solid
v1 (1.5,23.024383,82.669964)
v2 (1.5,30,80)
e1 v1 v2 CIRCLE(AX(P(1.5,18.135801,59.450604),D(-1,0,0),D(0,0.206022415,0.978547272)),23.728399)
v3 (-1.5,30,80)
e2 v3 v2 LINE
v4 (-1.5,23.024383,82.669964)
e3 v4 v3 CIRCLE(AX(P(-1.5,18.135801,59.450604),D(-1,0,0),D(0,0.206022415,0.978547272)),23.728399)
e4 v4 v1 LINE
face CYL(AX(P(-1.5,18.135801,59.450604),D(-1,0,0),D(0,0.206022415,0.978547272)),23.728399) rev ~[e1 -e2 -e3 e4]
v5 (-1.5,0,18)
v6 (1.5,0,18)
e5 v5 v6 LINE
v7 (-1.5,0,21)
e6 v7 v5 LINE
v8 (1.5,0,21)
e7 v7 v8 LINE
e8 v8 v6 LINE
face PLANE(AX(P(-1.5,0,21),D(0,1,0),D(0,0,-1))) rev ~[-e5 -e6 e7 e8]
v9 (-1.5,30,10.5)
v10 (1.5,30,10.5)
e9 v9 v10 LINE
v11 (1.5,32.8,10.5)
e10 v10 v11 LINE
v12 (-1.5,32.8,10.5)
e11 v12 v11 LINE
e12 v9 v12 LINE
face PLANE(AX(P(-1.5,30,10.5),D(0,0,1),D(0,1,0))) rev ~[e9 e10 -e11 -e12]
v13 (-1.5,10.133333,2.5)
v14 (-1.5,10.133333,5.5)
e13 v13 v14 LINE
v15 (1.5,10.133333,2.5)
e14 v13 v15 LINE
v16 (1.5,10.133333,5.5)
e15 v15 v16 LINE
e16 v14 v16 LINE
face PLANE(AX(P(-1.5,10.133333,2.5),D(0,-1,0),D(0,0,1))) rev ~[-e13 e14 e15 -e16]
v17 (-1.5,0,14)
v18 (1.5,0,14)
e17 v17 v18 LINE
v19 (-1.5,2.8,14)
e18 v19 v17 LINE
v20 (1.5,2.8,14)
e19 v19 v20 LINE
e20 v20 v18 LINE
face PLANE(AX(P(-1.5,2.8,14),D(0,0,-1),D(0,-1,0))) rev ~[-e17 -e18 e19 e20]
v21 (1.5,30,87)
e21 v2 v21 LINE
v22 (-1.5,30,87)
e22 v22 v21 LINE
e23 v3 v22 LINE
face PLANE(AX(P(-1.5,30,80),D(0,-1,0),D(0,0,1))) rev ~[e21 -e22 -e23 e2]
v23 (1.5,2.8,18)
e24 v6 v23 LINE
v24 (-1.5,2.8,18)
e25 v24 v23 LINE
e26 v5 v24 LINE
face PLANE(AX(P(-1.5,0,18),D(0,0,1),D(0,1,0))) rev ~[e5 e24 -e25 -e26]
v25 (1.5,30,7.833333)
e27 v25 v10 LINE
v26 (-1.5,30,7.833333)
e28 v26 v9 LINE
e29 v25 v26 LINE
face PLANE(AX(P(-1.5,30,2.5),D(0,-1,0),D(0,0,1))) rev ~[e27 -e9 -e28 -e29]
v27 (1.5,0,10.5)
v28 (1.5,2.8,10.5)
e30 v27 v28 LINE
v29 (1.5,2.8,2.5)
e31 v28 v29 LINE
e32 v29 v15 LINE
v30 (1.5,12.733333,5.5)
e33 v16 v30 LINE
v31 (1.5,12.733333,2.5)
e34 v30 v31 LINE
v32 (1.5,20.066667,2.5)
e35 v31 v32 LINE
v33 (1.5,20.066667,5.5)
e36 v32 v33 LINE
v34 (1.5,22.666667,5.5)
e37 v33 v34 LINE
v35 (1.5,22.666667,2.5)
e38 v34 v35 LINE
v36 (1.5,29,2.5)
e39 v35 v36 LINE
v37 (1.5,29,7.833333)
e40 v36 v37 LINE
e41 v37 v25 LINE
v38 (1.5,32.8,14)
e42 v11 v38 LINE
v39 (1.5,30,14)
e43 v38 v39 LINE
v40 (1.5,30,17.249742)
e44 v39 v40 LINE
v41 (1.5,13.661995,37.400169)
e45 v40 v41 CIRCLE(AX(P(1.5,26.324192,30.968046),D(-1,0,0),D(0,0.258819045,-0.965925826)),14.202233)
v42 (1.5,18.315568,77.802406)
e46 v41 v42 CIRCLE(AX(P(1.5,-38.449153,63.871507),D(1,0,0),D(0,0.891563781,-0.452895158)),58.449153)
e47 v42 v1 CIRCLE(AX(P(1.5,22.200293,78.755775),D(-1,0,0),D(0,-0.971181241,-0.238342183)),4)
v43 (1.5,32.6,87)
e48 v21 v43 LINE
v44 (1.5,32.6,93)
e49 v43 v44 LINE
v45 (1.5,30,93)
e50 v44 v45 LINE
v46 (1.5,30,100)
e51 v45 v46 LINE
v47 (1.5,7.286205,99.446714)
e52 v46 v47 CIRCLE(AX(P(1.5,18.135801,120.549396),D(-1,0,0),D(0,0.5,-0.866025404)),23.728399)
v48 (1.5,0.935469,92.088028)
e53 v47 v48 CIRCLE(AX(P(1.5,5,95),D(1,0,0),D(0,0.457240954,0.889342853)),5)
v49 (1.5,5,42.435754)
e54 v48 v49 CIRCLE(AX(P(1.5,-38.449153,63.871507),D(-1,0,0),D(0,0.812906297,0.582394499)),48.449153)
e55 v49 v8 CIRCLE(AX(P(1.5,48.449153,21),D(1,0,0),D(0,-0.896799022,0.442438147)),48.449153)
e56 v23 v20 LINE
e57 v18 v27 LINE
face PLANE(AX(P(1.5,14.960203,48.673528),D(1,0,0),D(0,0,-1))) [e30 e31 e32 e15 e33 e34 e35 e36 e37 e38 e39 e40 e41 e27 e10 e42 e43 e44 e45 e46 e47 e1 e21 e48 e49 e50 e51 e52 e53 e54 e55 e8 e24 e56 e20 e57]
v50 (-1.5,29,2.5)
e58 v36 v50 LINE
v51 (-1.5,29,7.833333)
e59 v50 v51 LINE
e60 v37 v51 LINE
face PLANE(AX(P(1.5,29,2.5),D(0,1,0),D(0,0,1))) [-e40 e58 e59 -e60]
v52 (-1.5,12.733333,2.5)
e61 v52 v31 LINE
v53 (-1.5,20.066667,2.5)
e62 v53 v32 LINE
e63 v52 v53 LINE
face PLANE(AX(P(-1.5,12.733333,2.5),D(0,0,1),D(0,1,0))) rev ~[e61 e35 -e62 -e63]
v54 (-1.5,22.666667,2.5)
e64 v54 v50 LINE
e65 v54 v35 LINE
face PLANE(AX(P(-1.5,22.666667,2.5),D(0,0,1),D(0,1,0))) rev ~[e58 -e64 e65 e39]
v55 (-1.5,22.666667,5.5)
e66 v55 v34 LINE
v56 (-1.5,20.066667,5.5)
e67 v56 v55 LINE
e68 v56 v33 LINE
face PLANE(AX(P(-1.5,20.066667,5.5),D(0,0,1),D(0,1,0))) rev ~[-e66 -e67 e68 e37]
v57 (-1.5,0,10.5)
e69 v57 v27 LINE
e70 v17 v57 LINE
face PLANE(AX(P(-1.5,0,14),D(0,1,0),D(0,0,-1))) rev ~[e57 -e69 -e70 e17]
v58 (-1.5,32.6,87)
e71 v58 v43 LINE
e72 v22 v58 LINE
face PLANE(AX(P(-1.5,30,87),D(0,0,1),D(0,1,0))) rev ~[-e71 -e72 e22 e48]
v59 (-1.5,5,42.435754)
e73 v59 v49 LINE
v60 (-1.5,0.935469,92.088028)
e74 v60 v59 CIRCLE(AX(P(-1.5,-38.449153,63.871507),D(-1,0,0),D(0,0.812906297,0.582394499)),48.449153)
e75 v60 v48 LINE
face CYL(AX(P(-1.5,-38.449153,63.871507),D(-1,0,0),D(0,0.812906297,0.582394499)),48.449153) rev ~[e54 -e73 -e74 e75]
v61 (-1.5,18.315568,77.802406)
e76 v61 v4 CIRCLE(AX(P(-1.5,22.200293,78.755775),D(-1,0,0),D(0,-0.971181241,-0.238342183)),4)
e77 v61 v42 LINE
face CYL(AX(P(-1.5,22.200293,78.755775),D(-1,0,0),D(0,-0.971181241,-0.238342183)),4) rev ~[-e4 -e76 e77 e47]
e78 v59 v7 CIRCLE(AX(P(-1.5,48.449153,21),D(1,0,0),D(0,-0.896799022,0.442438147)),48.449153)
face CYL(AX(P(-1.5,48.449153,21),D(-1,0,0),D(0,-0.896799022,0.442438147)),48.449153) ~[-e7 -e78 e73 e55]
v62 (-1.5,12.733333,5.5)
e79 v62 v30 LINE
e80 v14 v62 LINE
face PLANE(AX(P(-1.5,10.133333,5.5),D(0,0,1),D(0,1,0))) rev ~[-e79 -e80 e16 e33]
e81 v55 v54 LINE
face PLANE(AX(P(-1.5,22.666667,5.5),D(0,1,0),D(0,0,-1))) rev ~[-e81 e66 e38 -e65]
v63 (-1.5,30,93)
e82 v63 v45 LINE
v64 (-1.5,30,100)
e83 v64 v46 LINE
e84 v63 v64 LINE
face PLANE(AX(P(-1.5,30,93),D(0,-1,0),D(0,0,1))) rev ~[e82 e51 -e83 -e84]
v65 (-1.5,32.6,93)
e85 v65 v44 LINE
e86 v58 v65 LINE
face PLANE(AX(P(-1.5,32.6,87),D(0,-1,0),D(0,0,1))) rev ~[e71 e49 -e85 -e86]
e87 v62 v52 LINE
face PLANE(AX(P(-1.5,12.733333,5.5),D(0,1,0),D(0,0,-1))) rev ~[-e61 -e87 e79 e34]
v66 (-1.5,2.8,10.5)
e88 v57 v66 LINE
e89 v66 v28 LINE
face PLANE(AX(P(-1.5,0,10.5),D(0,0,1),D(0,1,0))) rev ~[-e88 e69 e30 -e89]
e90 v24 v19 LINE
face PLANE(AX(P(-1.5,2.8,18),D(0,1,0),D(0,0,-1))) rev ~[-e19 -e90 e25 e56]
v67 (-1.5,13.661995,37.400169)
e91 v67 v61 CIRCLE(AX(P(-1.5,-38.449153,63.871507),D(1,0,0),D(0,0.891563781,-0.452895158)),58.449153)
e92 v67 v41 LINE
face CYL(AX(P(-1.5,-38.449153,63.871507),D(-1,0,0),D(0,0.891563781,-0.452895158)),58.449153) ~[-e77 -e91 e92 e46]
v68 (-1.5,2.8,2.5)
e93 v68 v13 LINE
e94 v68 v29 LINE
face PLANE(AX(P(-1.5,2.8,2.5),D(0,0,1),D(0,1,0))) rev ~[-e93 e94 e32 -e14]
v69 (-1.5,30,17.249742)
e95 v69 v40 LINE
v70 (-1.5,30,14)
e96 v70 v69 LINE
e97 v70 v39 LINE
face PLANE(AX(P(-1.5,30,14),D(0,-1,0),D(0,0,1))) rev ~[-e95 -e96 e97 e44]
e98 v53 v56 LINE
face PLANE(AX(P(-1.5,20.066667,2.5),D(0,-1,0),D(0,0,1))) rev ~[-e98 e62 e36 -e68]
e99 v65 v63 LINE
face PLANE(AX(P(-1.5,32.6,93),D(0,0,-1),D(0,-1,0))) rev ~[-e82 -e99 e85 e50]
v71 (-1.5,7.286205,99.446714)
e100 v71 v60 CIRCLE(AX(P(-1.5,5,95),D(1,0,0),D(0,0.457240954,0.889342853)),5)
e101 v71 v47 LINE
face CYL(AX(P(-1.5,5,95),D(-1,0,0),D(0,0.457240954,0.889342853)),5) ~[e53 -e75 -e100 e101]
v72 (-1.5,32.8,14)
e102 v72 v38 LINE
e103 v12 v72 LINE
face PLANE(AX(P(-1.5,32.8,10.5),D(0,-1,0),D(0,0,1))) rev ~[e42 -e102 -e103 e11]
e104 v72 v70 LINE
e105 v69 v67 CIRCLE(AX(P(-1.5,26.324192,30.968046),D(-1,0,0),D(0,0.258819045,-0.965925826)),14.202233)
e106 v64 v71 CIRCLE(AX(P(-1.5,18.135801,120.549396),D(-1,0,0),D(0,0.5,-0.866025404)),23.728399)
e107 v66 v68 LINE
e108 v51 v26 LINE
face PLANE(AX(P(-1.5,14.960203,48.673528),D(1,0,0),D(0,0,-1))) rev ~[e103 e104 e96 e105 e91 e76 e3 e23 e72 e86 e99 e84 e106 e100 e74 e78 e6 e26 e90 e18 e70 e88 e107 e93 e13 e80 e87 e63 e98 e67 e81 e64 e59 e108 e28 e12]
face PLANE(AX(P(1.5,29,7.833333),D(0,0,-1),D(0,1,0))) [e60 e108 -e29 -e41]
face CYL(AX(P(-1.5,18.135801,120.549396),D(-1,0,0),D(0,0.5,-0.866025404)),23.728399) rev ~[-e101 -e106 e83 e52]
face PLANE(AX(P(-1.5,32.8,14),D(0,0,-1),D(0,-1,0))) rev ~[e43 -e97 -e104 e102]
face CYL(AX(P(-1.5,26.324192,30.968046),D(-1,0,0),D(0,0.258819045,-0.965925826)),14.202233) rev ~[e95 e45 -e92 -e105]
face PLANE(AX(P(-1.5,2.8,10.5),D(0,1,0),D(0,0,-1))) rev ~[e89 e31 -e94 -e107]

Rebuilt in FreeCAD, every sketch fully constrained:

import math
import FreeCAD as App
import Part
import Sketcher
Q = App.Units.Quantity

doc = App.newDocument("Part")
params = doc.addObject("Spreadsheet::Sheet", "Params")
for row, (alias, value) in enumerate([
    ("sketch1_radius", "5 mm"),
    ("sketch1_radius2", "4 mm"),
    ("sketch1_height", "7 mm"),
    ("sketch1_height2", "6 mm"),
    ("sketch1_height3", "3 mm"),
    ("pad1_length", "1.5 mm"),
    ("pad1_length2", "1.5 mm"),
    ("sketch2_width", "1 mm"),
], start=1):
    params.set(f"A{row}", alias)
    params.set(f"B{row}", "=" + value)
    params.setAlias(f"B{row}", alias)

body = doc.addObject("PartDesign::Body", "Body")

sketch1 = body.newObject("Sketcher::SketchObject", "Sketch")
sketch1.AttachmentSupport = (doc.getObject("YZ_Plane"), [""])
sketch1.MapMode = "FlatFace"
sketch1.addGeometry(Part.LineSegment(App.Vector(30, 80, 0), App.Vector(30, 87, 0)), False)
sketch1.addGeometry(Part.LineSegment(App.Vector(30, 87, 0), App.Vector(32.6, 87, 0)), False)
sketch1.addGeometry(Part.LineSegment(App.Vector(32.6, 87, 0), App.Vector(32.6, 93, 0)), False)
sketch1.addGeometry(Part.LineSegment(App.Vector(32.6, 93, 0), App.Vector(30, 93, 0)), False)
sketch1.addGeometry(Part.LineSegment(App.Vector(30, 93, 0), App.Vector(30, 100, 0)), False)
sketch1.addGeometry(Part.ArcOfCircle(Part.Circle(App.Vector(18.1, 120.5, 0), App.Vector(0, 0, 1), 23.7), math.radians(-117), math.radians(-60)), False)
sketch1.addGeometry(Part.ArcOfCircle(Part.Circle(App.Vector(5, 95, 0), App.Vector(0, 0, 1), 5), math.radians(63), math.radians(216)), False)
sketch1.addGeometry(Part.ArcOfCircle(Part.Circle(App.Vector(-38.4, 63.9, 0), App.Vector(0, 0, 1), 48.4), math.radians(-26), math.radians(36)), False)
sketch1.addGeometry(Part.ArcOfCircle(Part.Circle(App.Vector(48.4, 21, 0), App.Vector(0, 0, 1), 48.4), math.radians(154), math.radians(180)), False)
sketch1.addGeometry(Part.LineSegment(App.Vector(0, 21, 0), App.Vector(0, 18, 0)), False)
sketch1.addGeometry(Part.LineSegment(App.Vector(0, 18, 0), App.Vector(2.8, 18, 0)), False)
sketch1.addGeometry(Part.LineSegment(App.Vector(2.8, 18, 0), App.Vector(2.8, 14, 0)), False)
sketch1.addGeometry(Part.LineSegment(App.Vector(2.8, 14, 0), App.Vector(0, 14, 0)), False)
sketch1.addGeometry(Part.LineSegment(App.Vector(0, 14, 0), App.Vector(0, 10.5, 0)), False)
sketch1.addGeometry(Part.LineSegment(App.Vector(0, 10.5, 0), App.Vector(2.8, 10.5, 0)), False)
sketch1.addGeometry(Part.LineSegment(App.Vector(2.8, 10.5, 0), App.Vector(2.8, 2.5, 0)), False)
sketch1.addGeometry(Part.LineSegment(App.Vector(2.8, 2.5, 0), App.Vector(10.1, 2.5, 0)), False)
sketch1.addGeometry(Part.LineSegment(App.Vector(10.1, 2.5, 0), App.Vector(10.1, 5.5, 0)), False)
sketch1.addGeometry(Part.LineSegment(App.Vector(10.1, 5.5, 0), App.Vector(12.7, 5.5, 0)), False)
sketch1.addGeometry(Part.LineSegment(App.Vector(12.7, 5.5, 0), App.Vector(12.7, 2.5, 0)), False)
sketch1.addGeometry(Part.LineSegment(App.Vector(12.7, 2.5, 0), App.Vector(20.1, 2.5, 0)), False)
sketch1.addGeometry(Part.LineSegment(App.Vector(20.1, 2.5, 0), App.Vector(20.1, 5.5, 0)), False)
sketch1.addGeometry(Part.LineSegment(App.Vector(20.1, 5.5, 0), App.Vector(22.7, 5.5, 0)), False)
sketch1.addGeometry(Part.LineSegment(App.Vector(22.7, 5.5, 0), App.Vector(22.7, 2.5, 0)), False)
sketch1.addGeometry(Part.LineSegment(App.Vector(22.7, 2.5, 0), App.Vector(30, 2.5, 0)), False)
sketch1.addGeometry(Part.LineSegment(App.Vector(30, 2.5, 0), App.Vector(30, 10.5, 0)), False)
sketch1.addGeometry(Part.LineSegment(App.Vector(30, 10.5, 0), App.Vector(32.8, 10.5, 0)), False)
sketch1.addGeometry(Part.LineSegment(App.Vector(32.8, 10.5, 0), App.Vector(32.8, 14, 0)), False)
sketch1.addGeometry(Part.LineSegment(App.Vector(32.8, 14, 0), App.Vector(30, 14, 0)), False)
sketch1.addGeometry(Part.LineSegment(App.Vector(30, 14, 0), App.Vector(30, 17.2, 0)), False)
sketch1.addGeometry(Part.ArcOfCircle(Part.Circle(App.Vector(26.3, 31, 0), App.Vector(0, 0, 1), 14.2), math.radians(153), math.radians(285)), False)
sketch1.addGeometry(Part.ArcOfCircle(Part.Circle(App.Vector(-38.4, 63.9, 0), App.Vector(0, 0, 1), 58.4), math.radians(-27), math.radians(14)), False)
sketch1.addGeometry(Part.ArcOfCircle(Part.Circle(App.Vector(22.2, 78.8, 0), App.Vector(0, 0, 1), 4), math.radians(78), math.radians(194)), False)
sketch1.addGeometry(Part.ArcOfCircle(Part.Circle(App.Vector(18.1, 59.5, 0), App.Vector(0, 0, 1), 23.7), math.radians(60), math.radians(78.11)), False)
sketch1.addConstraint(Sketcher.Constraint("Coincident", 0, 2, 1, 1))
sketch1.addConstraint(Sketcher.Constraint("Coincident", 1, 2, 2, 1))
sketch1.addConstraint(Sketcher.Constraint("Coincident", 2, 2, 3, 1))
sketch1.addConstraint(Sketcher.Constraint("Coincident", 3, 2, 4, 1))
sketch1.addConstraint(Sketcher.Constraint("Coincident", 4, 2, 5, 2))
sketch1.addConstraint(Sketcher.Constraint("Tangent", 5, 1, 6, 1))
sketch1.addConstraint(Sketcher.Constraint("Tangent", 6, 2, 7, 2))
sketch1.addConstraint(Sketcher.Constraint("Tangent", 7, 1, 8, 1))
sketch1.addConstraint(Sketcher.Constraint("Tangent", 8, 2, 9, 1))
sketch1.addConstraint(Sketcher.Constraint("Coincident", 9, 2, 10, 1))
sketch1.addConstraint(Sketcher.Constraint("Coincident", 10, 2, 11, 1))
sketch1.addConstraint(Sketcher.Constraint("Coincident", 11, 2, 12, 1))
sketch1.addConstraint(Sketcher.Constraint("Coincident", 12, 2, 13, 1))
sketch1.addConstraint(Sketcher.Constraint("Coincident", 13, 2, 14, 1))
sketch1.addConstraint(Sketcher.Constraint("Coincident", 14, 2, 15, 1))
sketch1.addConstraint(Sketcher.Constraint("Coincident", 15, 2, 16, 1))
sketch1.addConstraint(Sketcher.Constraint("Coincident", 16, 2, 17, 1))
sketch1.addConstraint(Sketcher.Constraint("Coincident", 17, 2, 18, 1))
sketch1.addConstraint(Sketcher.Constraint("Coincident", 18, 2, 19, 1))
sketch1.addConstraint(Sketcher.Constraint("Coincident", 19, 2, 20, 1))
sketch1.addConstraint(Sketcher.Constraint("Coincident", 20, 2, 21, 1))
sketch1.addConstraint(Sketcher.Constraint("Coincident", 21, 2, 22, 1))
sketch1.addConstraint(Sketcher.Constraint("Coincident", 22, 2, 23, 1))
sketch1.addConstraint(Sketcher.Constraint("Coincident", 23, 2, 24, 1))
sketch1.addConstraint(Sketcher.Constraint("Coincident", 24, 2, 25, 1))
sketch1.addConstraint(Sketcher.Constraint("Coincident", 25, 2, 26, 1))
sketch1.addConstraint(Sketcher.Constraint("Coincident", 26, 2, 27, 1))
sketch1.addConstraint(Sketcher.Constraint("Coincident", 27, 2, 28, 1))
sketch1.addConstraint(Sketcher.Constraint("Coincident", 28, 2, 29, 1))
sketch1.addConstraint(Sketcher.Constraint("Coincident", 29, 2, 30, 2))
sketch1.addConstraint(Sketcher.Constraint("Tangent", 30, 1, 31, 1))
sketch1.addConstraint(Sketcher.Constraint("Tangent", 31, 2, 32, 2))
sketch1.addConstraint(Sketcher.Constraint("Tangent", 32, 1, 33, 2))
sketch1.addConstraint(Sketcher.Constraint("Coincident", 33, 1, 0, 1))
sketch1.addConstraint(Sketcher.Constraint("Vertical", 0))
sketch1.addConstraint(Sketcher.Constraint("Horizontal", 1))
sketch1.addConstraint(Sketcher.Constraint("Vertical", 2))
sketch1.addConstraint(Sketcher.Constraint("Horizontal", 3))
sketch1.addConstraint(Sketcher.Constraint("Vertical", 4))
sketch1.addConstraint(Sketcher.Constraint("Vertical", 9))
sketch1.addConstraint(Sketcher.Constraint("Horizontal", 10))
sketch1.addConstraint(Sketcher.Constraint("Vertical", 11))
sketch1.addConstraint(Sketcher.Constraint("Horizontal", 12))
sketch1.addConstraint(Sketcher.Constraint("Vertical", 13))
sketch1.addConstraint(Sketcher.Constraint("Horizontal", 14))
sketch1.addConstraint(Sketcher.Constraint("Vertical", 15))
sketch1.addConstraint(Sketcher.Constraint("Horizontal", 16))
sketch1.addConstraint(Sketcher.Constraint("Vertical", 17))
sketch1.addConstraint(Sketcher.Constraint("Horizontal", 18))
sketch1.addConstraint(Sketcher.Constraint("Vertical", 19))
sketch1.addConstraint(Sketcher.Constraint("Horizontal", 20))
sketch1.addConstraint(Sketcher.Constraint("Vertical", 21))
sketch1.addConstraint(Sketcher.Constraint("Horizontal", 22))
sketch1.addConstraint(Sketcher.Constraint("Vertical", 23))
sketch1.addConstraint(Sketcher.Constraint("Horizontal", 24))
sketch1.addConstraint(Sketcher.Constraint("Vertical", 25))
sketch1.addConstraint(Sketcher.Constraint("Horizontal", 26))
sketch1.addConstraint(Sketcher.Constraint("Vertical", 27))
sketch1.addConstraint(Sketcher.Constraint("Horizontal", 28))
sketch1.addConstraint(Sketcher.Constraint("Vertical", 29))
sketch1.addConstraint(Sketcher.Constraint("Coincident", 31, 3, 7, 3))
sketch1.addConstraint(Sketcher.Constraint("Equal", 7, 8))
sketch1.addConstraint(Sketcher.Constraint("Equal", 5, 33))
sketch1.addConstraint(Sketcher.Constraint("PointOnObject", 8, 2, -2))
sketch1.addConstraint(Sketcher.Constraint("PointOnObject", 12, 2, -2))
sketch1.addConstraint(Sketcher.Constraint("Horizontal", 16, 2, 19, 2))
sketch1.addConstraint(Sketcher.Constraint("Horizontal", 18, 2, 21, 2))
sketch1.addConstraint(Sketcher.Constraint("Horizontal", 20, 2, 23, 2))
sketch1.addConstraint(Sketcher.Constraint("Horizontal", 14, 2, 25, 2))
sketch1.addConstraint(Sketcher.Constraint("Horizontal", 12, 2, 27, 2))
sketch1.addConstraint(Sketcher.Constraint("Vertical", 5, 3, 33, 3))
sketch1.addConstraint(Sketcher.Constraint("Vertical", 0, 2, 3, 2))
sketch1.addConstraint(Sketcher.Constraint("Vertical", 6, 3, 7, 1))
sketch1.addConstraint(Sketcher.Constraint("Vertical", 11, 2, 14, 2))
sketch1.addConstraint(Sketcher.Constraint("Vertical", 4, 2, 24, 2))
sketch1.addConstraint(Sketcher.Constraint("Vertical", 25, 2, 28, 2))
sketch1.addConstraint(Sketcher.Constraint("Equal", 3, 18))
sketch1.addConstraint(Sketcher.Constraint("Equal", 16, 20))
sketch1.addConstraint(Sketcher.Constraint("Equal", 18, 22))
sketch1.addConstraint(Sketcher.Constraint("Equal", 20, 24))
sketch1.addConstraint(Sketcher.Constraint("Equal", 14, 26))
sketch1.addConstraint(Sketcher.Constraint("Equal", 0, 4))
sketch1.addConstraint(Sketcher.Constraint("Equal", 9, 17))
sketch1.addConstraint(Sketcher.Constraint("Radius", 6, Q("5 mm")))
sketch1.addConstraint(Sketcher.Constraint("Radius", 32, Q("4 mm")))
sketch1.addConstraint(Sketcher.Constraint("DistanceY", 0, 1, 0, 2, Q("7 mm")))
sketch1.addConstraint(Sketcher.Constraint("DistanceY", 2, 1, 2, 2, Q("6 mm")))
sketch1.addConstraint(Sketcher.Constraint("DistanceY", 9, 2, 9, 1, Q("3 mm")))
sketch1.addConstraint(Sketcher.Constraint("DistanceY", 11, 2, 11, 1, Q("4 mm")))
sketch1.addConstraint(Sketcher.Constraint("DistanceY", 15, 2, 15, 1, Q("8 mm")))
sketch1.addConstraint(Sketcher.Constraint("DistanceX", 1, 1, 1, 2, Q("2.6 mm")))
sketch1.addConstraint(Sketcher.Constraint("DistanceX", 10, 1, 10, 2, Q("2.8 mm")))
sketch1.addConstraint(Sketcher.Constraint("DistanceY", 13, 2, 13, 1, Q("3.5 mm")))
sketch1.addConstraint(Sketcher.Constraint("DistanceX", -1, 1, 6, 3, Q("5 mm")))
sketch1.addConstraint(Sketcher.Constraint("DistanceY", -1, 1, 6, 3, Q("95 mm")))
sketch1.addConstraint(Sketcher.Constraint("DistanceY", -1, 1, 8, 3, Q("21 mm")))
sketch1.addConstraint(Sketcher.Constraint("DistanceX", -1, 1, 0, 2, Q("30 mm")))
sketch1.addConstraint(Sketcher.Constraint("DistanceY", -1, 1, 0, 2, Q("87 mm")))
sketch1.addConstraint(Sketcher.Constraint("Radius", 5, Q("23.728399 mm")))
sketch1.addConstraint(Sketcher.Constraint("Radius", 30, Q("14.202233 mm")))
sketch1.addConstraint(Sketcher.Constraint("Radius", 31, Q("58.449153 mm")))
sketch1.addConstraint(Sketcher.Constraint("DistanceX", 32, 3, 30, 3, Q("4.123899 mm")))
sketch1.setExpression("Constraints[83]", "Params.sketch1_radius")
sketch1.setExpression("Constraints[84]", "Params.sketch1_radius2")
sketch1.setExpression("Constraints[85]", "Params.sketch1_height")
sketch1.setExpression("Constraints[86]", "Params.sketch1_height2")
sketch1.setExpression("Constraints[87]", "Params.sketch1_height3")
pad1 = body.newObject("PartDesign::Pad", "Pad")
pad1.Profile = sketch1
pad1.Type = "TwoLengths"
pad1.setExpression("Length", "Params.pad1_length")
pad1.setExpression("Length2", "Params.pad1_length2")

sketch2 = body.newObject("Sketcher::SketchObject", "Sketch001")
sketch2.AttachmentSupport = (doc.getObject("YZ_Plane"), [""])
sketch2.MapMode = "FlatFace"
sketch2.AttachmentOffset = App.Placement(App.Vector(0, 0, 1.5), App.Rotation())
sketch2.addGeometry(Part.LineSegment(App.Vector(30, 2.5, 0), App.Vector(30, 7.8, 0)), False)
sketch2.addGeometry(Part.LineSegment(App.Vector(30, 7.8, 0), App.Vector(29, 7.8, 0)), False)
sketch2.addGeometry(Part.LineSegment(App.Vector(29, 7.8, 0), App.Vector(29, 2.5, 0)), False)
sketch2.addGeometry(Part.LineSegment(App.Vector(29, 2.5, 0), App.Vector(30, 2.5, 0)), False)
sketch2.addConstraint(Sketcher.Constraint("Coincident", 0, 2, 1, 1))
sketch2.addConstraint(Sketcher.Constraint("Coincident", 1, 2, 2, 1))
sketch2.addConstraint(Sketcher.Constraint("Coincident", 2, 2, 3, 1))
sketch2.addConstraint(Sketcher.Constraint("Coincident", 3, 2, 0, 1))
sketch2.addConstraint(Sketcher.Constraint("Vertical", 0))
sketch2.addConstraint(Sketcher.Constraint("Horizontal", 1))
sketch2.addConstraint(Sketcher.Constraint("Vertical", 2))
sketch2.addConstraint(Sketcher.Constraint("Horizontal", 3))
sketch2.addConstraint(Sketcher.Constraint("DistanceX", 1, 2, 1, 1, Q("1 mm")))
sketch2.addConstraint(Sketcher.Constraint("DistanceX", -1, 1, 0, 2, Q("30 mm")))
sketch2.addConstraint(Sketcher.Constraint("DistanceY", -1, 1, 2, 2, Q("2.5 mm")))
sketch2.addConstraint(Sketcher.Constraint("DistanceY", 0, 1, 0, 2, Q("5.333333 mm")))
sketch2.setExpression("Constraints[8]", "Params.sketch2_width")
pocket1 = body.newObject("PartDesign::Pocket", "Pocket")
pocket1.Profile = sketch2
pocket1.Type = "ThroughAll"

doc.recompute()
